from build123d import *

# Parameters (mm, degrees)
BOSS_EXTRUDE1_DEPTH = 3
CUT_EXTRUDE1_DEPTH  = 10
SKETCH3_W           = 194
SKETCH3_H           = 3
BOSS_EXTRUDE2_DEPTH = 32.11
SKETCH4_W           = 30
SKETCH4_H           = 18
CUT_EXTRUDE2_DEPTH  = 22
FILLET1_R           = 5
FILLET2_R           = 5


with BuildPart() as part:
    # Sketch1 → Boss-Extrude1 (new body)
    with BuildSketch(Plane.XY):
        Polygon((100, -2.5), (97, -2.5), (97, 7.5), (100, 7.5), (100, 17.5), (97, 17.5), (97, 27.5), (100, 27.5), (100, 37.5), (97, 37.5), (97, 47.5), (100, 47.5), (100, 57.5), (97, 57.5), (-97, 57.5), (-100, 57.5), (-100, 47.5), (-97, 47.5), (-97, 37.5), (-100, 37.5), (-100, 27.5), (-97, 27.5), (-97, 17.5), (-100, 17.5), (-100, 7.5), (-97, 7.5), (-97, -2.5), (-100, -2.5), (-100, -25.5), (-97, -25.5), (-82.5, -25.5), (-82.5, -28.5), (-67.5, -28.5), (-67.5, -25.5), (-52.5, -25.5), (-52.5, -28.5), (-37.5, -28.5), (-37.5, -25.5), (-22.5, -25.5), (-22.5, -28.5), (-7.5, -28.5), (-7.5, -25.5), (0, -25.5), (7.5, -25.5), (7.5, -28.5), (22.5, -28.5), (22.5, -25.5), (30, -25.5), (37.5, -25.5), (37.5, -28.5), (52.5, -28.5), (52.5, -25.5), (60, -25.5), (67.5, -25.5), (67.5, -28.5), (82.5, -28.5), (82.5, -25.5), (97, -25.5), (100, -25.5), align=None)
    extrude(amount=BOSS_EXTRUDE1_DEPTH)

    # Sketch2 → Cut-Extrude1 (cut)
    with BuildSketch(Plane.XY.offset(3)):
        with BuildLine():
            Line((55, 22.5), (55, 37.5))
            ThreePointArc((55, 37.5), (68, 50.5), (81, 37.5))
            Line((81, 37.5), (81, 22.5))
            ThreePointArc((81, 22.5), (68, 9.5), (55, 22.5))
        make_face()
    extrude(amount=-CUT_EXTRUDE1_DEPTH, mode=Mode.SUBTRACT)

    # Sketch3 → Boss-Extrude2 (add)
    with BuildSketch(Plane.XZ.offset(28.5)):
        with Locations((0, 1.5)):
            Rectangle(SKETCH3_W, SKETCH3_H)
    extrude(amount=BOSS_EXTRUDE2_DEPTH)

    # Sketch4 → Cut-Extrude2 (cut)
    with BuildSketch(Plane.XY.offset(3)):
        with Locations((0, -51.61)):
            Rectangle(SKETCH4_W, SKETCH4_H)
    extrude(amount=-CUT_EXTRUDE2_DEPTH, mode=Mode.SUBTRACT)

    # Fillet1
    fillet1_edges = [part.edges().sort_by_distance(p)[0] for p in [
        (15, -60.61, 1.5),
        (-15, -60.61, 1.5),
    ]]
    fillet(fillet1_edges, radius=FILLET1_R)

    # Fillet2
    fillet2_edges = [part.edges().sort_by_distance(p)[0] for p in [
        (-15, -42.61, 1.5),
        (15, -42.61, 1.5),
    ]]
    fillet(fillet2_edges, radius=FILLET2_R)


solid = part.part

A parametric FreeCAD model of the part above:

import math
import FreeCAD as App
import Part
import Sketcher
Q = App.Units.Quantity


def edges_at(feature, points):
    """Names of the edges that pass closest to the given points."""
    edges = feature.Shape.Edges
    near = lambda p: min(range(len(edges)), key=lambda i: edges[i].distToShape(Part.Vertex(*p))[0])
    return sorted({f"Edge{near(p) + 1}" for p in points})

doc = App.newDocument("Part")
params = doc.addObject("Spreadsheet::Sheet", "Params")
for row, (alias, value) in enumerate([
    ("sketch1_width", "3 mm"),
    ("sketch1_width2", "200 mm"),
    ("sketch1_width3", "15 mm"),
    ("sketch1_height", "10 mm"),
    ("sketch1_height2", "23 mm"),
    ("pad1_length", "3 mm"),
    ("sketch2_radius", "13 mm"),
    ("sketch2_height", "15 mm"),
    ("pocket1_length", "10 mm"),
    ("sketch3_width", "194 mm"),
    ("sketch3_height", "3 mm"),
    ("pad2_length", "32.11 mm"),
    ("sketch4_width", "30 mm"),
    ("sketch4_height", "18 mm"),
    ("pocket2_length", "22 mm"),
    ("fillet_radius", "5 mm"),
    ("fillet2_radius", "5 mm"),
], start=1):
    params.set(f"A{row}", alias)
    params.set(f"B{row}", "=" + value)
    params.setAlias(f"B{row}", alias)

body = doc.addObject("PartDesign::Body", "Body")

# Sketch on XY plane
sketch1 = body.newObject("Sketcher::SketchObject", "Sketch")
sketch1.AttachmentSupport = (doc.getObject("XY_Plane"), [""])
sketch1.MapMode = "FlatFace"
sketch1.addGeometry([
    Part.LineSegment(App.Vector(100, -2.5, 0), App.Vector(97, -2.5, 0)),  # 0
    Part.LineSegment(App.Vector(97, -2.5, 0), App.Vector(97, 7.5, 0)),  # 1
    Part.LineSegment(App.Vector(97, 7.5, 0), App.Vector(100, 7.5, 0)),  # 2
    Part.LineSegment(App.Vector(100, 7.5, 0), App.Vector(100, 17.5, 0)),  # 3
    Part.LineSegment(App.Vector(100, 17.5, 0), App.Vector(97, 17.5, 0)),  # 4
    Part.LineSegment(App.Vector(97, 17.5, 0), App.Vector(97, 27.5, 0)),  # 5
    Part.LineSegment(App.Vector(97, 27.5, 0), App.Vector(100, 27.5, 0)),  # 6
    Part.LineSegment(App.Vector(100, 27.5, 0), App.Vector(100, 37.5, 0)),  # 7
    Part.LineSegment(App.Vector(100, 37.5, 0), App.Vector(97, 37.5, 0)),  # 8
    Part.LineSegment(App.Vector(97, 37.5, 0), App.Vector(97, 47.5, 0)),  # 9
    Part.LineSegment(App.Vector(97, 47.5, 0), App.Vector(100, 47.5, 0)),  # 10
    Part.LineSegment(App.Vector(100, 47.5, 0), App.Vector(100, 57.5, 0)),  # 11
    Part.LineSegment(App.Vector(100, 57.5, 0), App.Vector(-100, 57.5, 0)),  # 12
    Part.LineSegment(App.Vector(-100, 57.5, 0), App.Vector(-100, 47.5, 0)),  # 13
    Part.LineSegment(App.Vector(-100, 47.5, 0), App.Vector(-97, 47.5, 0)),  # 14
    Part.LineSegment(App.Vector(-97, 47.5, 0), App.Vector(-97, 37.5, 0)),  # 15
    Part.LineSegment(App.Vector(-97, 37.5, 0), App.Vector(-100, 37.5, 0)),  # 16
    Part.LineSegment(App.Vector(-100, 37.5, 0), App.Vector(-100, 27.5, 0)),  # 17
    Part.LineSegment(App.Vector(-100, 27.5, 0), App.Vector(-97, 27.5, 0)),  # 18
    Part.LineSegment(App.Vector(-97, 27.5, 0), App.Vector(-97, 17.5, 0)),  # 19
    Part.LineSegment(App.Vector(-97, 17.5, 0), App.Vector(-100, 17.5, 0)),  # 20
    Part.LineSegment(App.Vector(-100, 17.5, 0), App.Vector(-100, 7.5, 0)),  # 21
    Part.LineSegment(App.Vector(-100, 7.5, 0), App.Vector(-97, 7.5, 0)),  # 22
    Part.LineSegment(App.Vector(-97, 7.5, 0), App.Vector(-97, -2.5, 0)),  # 23
    Part.LineSegment(App.Vector(-97, -2.5, 0), App.Vector(-100, -2.5, 0)),  # 24
    Part.LineSegment(App.Vector(-100, -2.5, 0), App.Vector(-100, -25.5, 0)),  # 25
    Part.LineSegment(App.Vector(-100, -25.5, 0), App.Vector(-82.5, -25.5, 0)),  # 26
    Part.LineSegment(App.Vector(-82.5, -25.5, 0), App.Vector(-82.5, -28.5, 0)),  # 27
    Part.LineSegment(App.Vector(-82.5, -28.5, 0), App.Vector(-67.5, -28.5, 0)),  # 28
    Part.LineSegment(App.Vector(-67.5, -28.5, 0), App.Vector(-67.5, -25.5, 0)),  # 29
    Part.LineSegment(App.Vector(-67.5, -25.5, 0), App.Vector(-52.5, -25.5, 0)),  # 30
    Part.LineSegment(App.Vector(-52.5, -25.5, 0), App.Vector(-52.5, -28.5, 0)),  # 31
    Part.LineSegment(App.Vector(-52.5, -28.5, 0), App.Vector(-37.5, -28.5, 0)),  # 32
    Part.LineSegment(App.Vector(-37.5, -28.5, 0), App.Vector(-37.5, -25.5, 0)),  # 33
    Part.LineSegment(App.Vector(-37.5, -25.5, 0), App.Vector(-22.5, -25.5, 0)),  # 34
    Part.LineSegment(App.Vector(-22.5, -25.5, 0), App.Vector(-22.5, -28.5, 0)),  # 35
    Part.LineSegment(App.Vector(-22.5, -28.5, 0), App.Vector(-7.5, -28.5, 0)),  # 36
    Part.LineSegment(App.Vector(-7.5, -28.5, 0), App.Vector(-7.5, -25.5, 0)),  # 37
    Part.LineSegment(App.Vector(-7.5, -25.5, 0), App.Vector(7.5, -25.5, 0)),  # 38
    Part.LineSegment(App.Vector(7.5, -25.5, 0), App.Vector(7.5, -28.5, 0)),  # 39
    Part.LineSegment(App.Vector(7.5, -28.5, 0), App.Vector(22.5, -28.5, 0)),  # 40
    Part.LineSegment(App.Vector(22.5, -28.5, 0), App.Vector(22.5, -25.5, 0)),  # 41
    Part.LineSegment(App.Vector(22.5, -25.5, 0), App.Vector(37.5, -25.5, 0)),  # 42
    Part.LineSegment(App.Vector(37.5, -25.5, 0), App.Vector(37.5, -28.5, 0)),  # 43
    Part.LineSegment(App.Vector(37.5, -28.5, 0), App.Vector(52.5, -28.5, 0)),  # 44
    Part.LineSegment(App.Vector(52.5, -28.5, 0), App.Vector(52.5, -25.5, 0)),  # 45
    Part.LineSegment(App.Vector(52.5, -25.5, 0), App.Vector(67.5, -25.5, 0)),  # 46
    Part.LineSegment(App.Vector(67.5, -25.5, 0), App.Vector(67.5, -28.5, 0)),  # 47
    Part.LineSegment(App.Vector(67.5, -28.5, 0), App.Vector(82.5, -28.5, 0)),  # 48
    Part.LineSegment(App.Vector(82.5, -28.5, 0), App.Vector(82.5, -25.5, 0)),  # 49
    Part.LineSegment(App.Vector(82.5, -25.5, 0), App.Vector(100, -25.5, 0)),  # 50
    Part.LineSegment(App.Vector(100, -25.5, 0), App.Vector(100, -2.5, 0)),  # 51
], False)
sketch1.addConstraint([
    Sketcher.Constraint("Coincident", 0, 2, 1, 1),
    Sketcher.Constraint("Coincident", 1, 2, 2, 1),
    Sketcher.Constraint("Coincident", 2, 2, 3, 1),
    Sketcher.Constraint("Coincident", 3, 2, 4, 1),
    Sketcher.Constraint("Coincident", 4, 2, 5, 1),
    Sketcher.Constraint("Coincident", 5, 2, 6, 1),
    Sketcher.Constraint("Coincident", 6, 2, 7, 1),
    Sketcher.Constraint("Coincident", 7, 2, 8, 1),
    Sketcher.Constraint("Coincident", 8, 2, 9, 1),
    Sketcher.Constraint("Coincident", 9, 2, 10, 1),
    Sketcher.Constraint("Coincident", 10, 2, 11, 1),
    Sketcher.Constraint("Coincident", 11, 2, 12, 1),
    Sketcher.Constraint("Coincident", 12, 2, 13, 1),
    Sketcher.Constraint("Coincident", 13, 2, 14, 1),
    Sketcher.Constraint("Coincident", 14, 2, 15, 1),
    Sketcher.Constraint("Coincident", 15, 2, 16, 1),
    Sketcher.Constraint("Coincident", 16, 2, 17, 1),
    Sketcher.Constraint("Coincident", 17, 2, 18, 1),
    Sketcher.Constraint("Coincident", 18, 2, 19, 1),
    Sketcher.Constraint("Coincident", 19, 2, 20, 1),
    Sketcher.Constraint("Coincident", 20, 2, 21, 1),
    Sketcher.Constraint("Coincident", 21, 2, 22, 1),
    Sketcher.Constraint("Coincident", 22, 2, 23, 1),
    Sketcher.Constraint("Coincident", 23, 2, 24, 1),
    Sketcher.Constraint("Coincident", 24, 2, 25, 1),
    Sketcher.Constraint("Coincident", 25, 2, 26, 1),
    Sketcher.Constraint("Coincident", 26, 2, 27, 1),
    Sketcher.Constraint("Coincident", 27, 2, 28, 1),
    Sketcher.Constraint("Coincident", 28, 2, 29, 1),
    Sketcher.Constraint("Coincident", 29, 2, 30, 1),
    Sketcher.Constraint("Coincident", 30, 2, 31, 1),
    Sketcher.Constraint("Coincident", 31, 2, 32, 1),
    Sketcher.Constraint("Coincident", 32, 2, 33, 1),
    Sketcher.Constraint("Coincident", 33, 2, 34, 1),
    Sketcher.Constraint("Coincident", 34, 2, 35, 1),
    Sketcher.Constraint("Coincident", 35, 2, 36, 1),
    Sketcher.Constraint("Coincident", 36, 2, 37, 1),
    Sketcher.Constraint("Coincident", 37, 2, 38, 1),
    Sketcher.Constraint("Coincident", 38, 2, 39, 1),
    Sketcher.Constraint("Coincident", 39, 2, 40, 1),
    Sketcher.Constraint("Coincident", 40, 2, 41, 1),
    Sketcher.Constraint("Coincident", 41, 2, 42, 1),
    Sketcher.Constraint("Coincident", 42, 2, 43, 1),
    Sketcher.Constraint("Coincident", 43, 2, 44, 1),
    Sketcher.Constraint("Coincident", 44, 2, 45, 1),
    Sketcher.Constraint("Coincident", 45, 2, 46, 1),
    Sketcher.Constraint("Coincident", 46, 2, 47, 1),
    Sketcher.Constraint("Coincident", 47, 2, 48, 1),
    Sketcher.Constraint("Coincident", 48, 2, 49, 1),
    Sketcher.Constraint("Coincident", 49, 2, 50, 1),
    Sketcher.Constraint("Coincident", 50, 2, 51, 1),
    Sketcher.Constraint("Coincident", 51, 2, 0, 1),
    Sketcher.Constraint("Horizontal", 0),
    Sketcher.Constraint("Vertical", 1),
    Sketcher.Constraint("Horizontal", 2),
    Sketcher.Constraint("Vertical", 3),
    Sketcher.Constraint("Horizontal", 4),
    Sketcher.Constraint("Vertical", 5),
    Sketcher.Constraint("Horizontal", 6),
    Sketcher.Constraint("Vertical", 7),
    Sketcher.Constraint("Horizontal", 8),
    Sketcher.Constraint("Vertical", 9),
    Sketcher.Constraint("Horizontal", 10),
    Sketcher.Constraint("Vertical", 11),
    Sketcher.Constraint("Horizontal", 12),
    Sketcher.Constraint("Vertical", 13),
    Sketcher.Constraint("Horizontal", 14),
    Sketcher.Constraint("Vertical", 15),
    Sketcher.Constraint("Horizontal", 16),
    Sketcher.Constraint("Vertical", 17),
    Sketcher.Constraint("Horizontal", 18),
    Sketcher.Constraint("Vertical", 19),
    Sketcher.Constraint("Horizontal", 20),
    Sketcher.Constraint("Vertical", 21),
    Sketcher.Constraint("Horizontal", 22),
    Sketcher.Constraint("Vertical", 23),
    Sketcher.Constraint("Horizontal", 24),
    Sketcher.Constraint("Vertical", 25),
    Sketcher.Constraint("Horizontal", 26),
    Sketcher.Constraint("Vertical", 27),
    Sketcher.Constraint("Horizontal", 28),
    Sketcher.Constraint("Vertical", 29),
    Sketcher.Constraint("Horizontal", 30),
    Sketcher.Constraint("Vertical", 31),
    Sketcher.Constraint("Horizontal", 32),
    Sketcher.Constraint("Vertical", 33),
    Sketcher.Constraint("Horizontal", 34),
    Sketcher.Constraint("Vertical", 35),
    Sketcher.Constraint("Horizontal", 36),
    Sketcher.Constraint("Vertical", 37),
    Sketcher.Constraint("Horizontal", 38),
    Sketcher.Constraint("Vertical", 39),
    Sketcher.Constraint("Horizontal", 40),
    Sketcher.Constraint("Vertical", 41),
    Sketcher.Constraint("Horizontal", 42),
    Sketcher.Constraint("Vertical", 43),
    Sketcher.Constraint("Horizontal", 44),
    Sketcher.Constraint("Vertical", 45),
    Sketcher.Constraint("Horizontal", 46),
    Sketcher.Constraint("Vertical", 47),
    Sketcher.Constraint("Horizontal", 48),
    Sketcher.Constraint("Vertical", 49),
    Sketcher.Constraint("Horizontal", 50),
    Sketcher.Constraint("Vertical", 51),
    Sketcher.Constraint("Symmetric", 10, 2, 13, 2, -2),
    Sketcher.Constraint("Symmetric", 8, 2, 15, 2, -2),
    Sketcher.Constraint("Symmetric", 6, 2, 17, 2, -2),
    Sketcher.Constraint("Symmetric", 4, 2, 19, 2, -2),
    Sketcher.Constraint("Symmetric", 2, 2, 21, 2, -2),
    Sketcher.Constraint("Symmetric", 0, 2, 23, 2, -2),
    Sketcher.Constraint("Symmetric", 36, 2, 39, 2, -2),
    Sketcher.Constraint("Symmetric", 34, 2, 41, 2, -2),
    Sketcher.Constraint("Symmetric", 32, 2, 43, 2, -2),
    Sketcher.Constraint("Symmetric", 30, 2, 45, 2, -2),
    Sketcher.Constraint("Symmetric", 28, 2, 47, 2, -2),
    Sketcher.Constraint("Symmetric", 26, 2, 49, 2, -2),
    Sketcher.Constraint("Horizontal", 26, 2, 29, 2),
    Sketcher.Constraint("Horizontal", 28, 2, 31, 2),
    Sketcher.Constraint("Horizontal", 30, 2, 33, 2),
    Sketcher.Constraint("Horizontal", 32, 2, 35, 2),
    Sketcher.Constraint("Horizontal", 34, 2, 37, 2),
    Sketcher.Constraint("Vertical", 1, 2, 4, 2),
    Sketcher.Constraint("Vertical", 3, 2, 6, 2),
    Sketcher.Constraint("Vertical", 5, 2, 8, 2),
    Sketcher.Constraint("Vertical", 7, 2, 10, 2),
    Sketcher.Constraint("Vertical", 21, 2, 24, 2),
    Sketcher.Constraint("Vertical", 11, 2, 50, 2),
    Sketcher.Constraint("Equal", 28, 30),
    Sketcher.Constraint("Equal", 30, 32),
    Sketcher.Constraint("Equal", 32, 34),
    Sketcher.Constraint("Equal", 34, 36),
    Sketcher.Constraint("Equal", 36, 38),
    Sketcher.Constraint("Equal", 1, 3),
    Sketcher.Constraint("Equal", 3, 5),
    Sketcher.Constraint("Equal", 5, 7),
    Sketcher.Constraint("Equal", 7, 9),
    Sketcher.Constraint("Equal", 9, 11),
    Sketcher.Constraint("Equal", 24, 27),
    Sketcher.Constraint("DistanceX", 0, 2, 0, 1, Q("3 mm")),
    Sketcher.Constraint("DistanceX", 12, 2, 12, 1, Q("200 mm")),
    Sketcher.Constraint("DistanceX", 28, 1, 28, 2, Q("15 mm")),
    Sketcher.Constraint("DistanceY", 1, 1, 1, 2, Q("10 mm")),
    Sketcher.Constraint("DistanceY", 25, 2, 25, 1, Q("23 mm")),
    Sketcher.Constraint("DistanceY", 0, 2, -1, 1, Q("2.5 mm")),
])
sketch1.setExpression("Constraints[138]", "Params.sketch1_width")
sketch1.setExpression("Constraints[139]", "Params.sketch1_width2")
sketch1.setExpression("Constraints[140]", "Params.sketch1_width3")
sketch1.setExpression("Constraints[141]", "Params.sketch1_height")
sketch1.setExpression("Constraints[142]", "Params.sketch1_height2")
pad1 = body.newObject("PartDesign::Pad", "Pad")
pad1.Profile = sketch1
pad1.setExpression("Length", "Params.pad1_length")

# Sketch on XY plane
sketch2 = body.newObject("Sketcher::SketchObject", "Sketch001")
sketch2.AttachmentSupport = (doc.getObject("XY_Plane"), [""])
sketch2.MapMode = "FlatFace"
sketch2.AttachmentOffset = App.Placement(App.Vector(0, 0, 3), App.Rotation())
sketch2.addGeometry([
    Part.LineSegment(App.Vector(55, 38, 0), App.Vector(55, 22, 0)),
    Part.ArcOfCircle(Part.Circle(App.Vector(68, 22, 0), App.Vector(0, 0, 1), 13), math.radians(180), math.radians(360)),
    Part.LineSegment(App.Vector(81, 22, 0), App.Vector(81, 38, 0)),
    Part.ArcOfCircle(Part.Circle(App.Vector(68, 38, 0), App.Vector(0, 0, 1), 13), math.radians(0), math.radians(180)),
], False)
sketch2.addConstraint([
    Sketcher.Constraint("Tangent", 0, 2, 1, 1),
    Sketcher.Constraint("Tangent", 1, 2, 2, 1),
    Sketcher.Constraint("Tangent", 2, 2, 3, 1),
    Sketcher.Constraint("Tangent", 3, 2, 0, 1),
    Sketcher.Constraint("Vertical", 0),
    Sketcher.Constraint("Vertical", 2),
    Sketcher.Constraint("Radius", 1, Q("13 mm")),
    Sketcher.Constraint("DistanceY", 0, 2, 0, 1, Q("15 mm")),
    Sketcher.Constraint("DistanceX", -1, 1, 1, 3, Q("68 mm")),
    Sketcher.Constraint("DistanceY", -1, 1, 1, 3, Q("22.5 mm")),
])
sketch2.setExpression("Constraints[6]", "Params.sketch2_radius")
sketch2.setExpression("Constraints[7]", "Params.sketch2_height")
pocket1 = body.newObject("PartDesign::Pocket", "Pocket")
pocket1.Profile = sketch2
pocket1.setExpression("Length", "Params.pocket1_length")

# Sketch on XZ plane
sketch3 = body.newObject("Sketcher::SketchObject", "Sketch002")
sketch3.AttachmentSupport = (doc.getObject("XZ_Plane"), [""])
sketch3.MapMode = "FlatFace"
sketch3.AttachmentOffset = App.Placement(App.Vector(0, 0, 28.5), App.Rotation())
sketch3.addGeometry([
    Part.LineSegment(App.Vector(-97, 3, 0), App.Vector(-97, 0, 0)),
    Part.LineSegment(App.Vector(-97, 0, 0), App.Vector(97, 0, 0)),
    Part.LineSegment(App.Vector(97, 0, 0), App.Vector(97, 3, 0)),
    Part.LineSegment(App.Vector(97, 3, 0), App.Vector(-97, 3, 0)),
], False)
sketch3.addConstraint([
    Sketcher.Constraint("Coincident", 0, 2, 1, 1),
    Sketcher.Constraint("Coincident", 1, 2, 2, 1),
    Sketcher.Constraint("Coincident", 2, 2, 3, 1),
    Sketcher.Constraint("Coincident", 3, 2, 0, 1),
    Sketcher.Constraint("Vertical", 0),
    Sketcher.Constraint("Horizontal", 1),
    Sketcher.Constraint("Vertical", 2),
    Sketcher.Constraint("Horizontal", 3),
    Sketcher.Constraint("Symmetric", 0, 2, 1, 2, -1, 1),
    Sketcher.Constraint("DistanceX", 1, 1, 1, 2, Q("194 mm")),
    Sketcher.Constraint("DistanceY", 0, 2, 0, 1, Q("3 mm")),
])
sketch3.setExpression("Constraints[9]", "Params.sketch3_width")
sketch3.setExpression("Constraints[10]", "Params.sketch3_height")
pad2 = body.newObject("PartDesign::Pad", "Pad001")
pad2.Profile = sketch3
pad2.setExpression("Length", "Params.pad2_length")

# Sketch on XY plane
sketch4 = body.newObject("Sketcher::SketchObject", "Sketch003")
sketch4.AttachmentSupport = (doc.getObject("XY_Plane"), [""])
sketch4.MapMode = "FlatFace"
sketch4.AttachmentOffset = App.Placement(App.Vector(0, 0, 3), App.Rotation())
sketch4.addGeometry([
    Part.LineSegment(App.Vector(-15, -43, 0), App.Vector(-15, -61, 0)),
    Part.LineSegment(App.Vector(-15, -61, 0), App.Vector(15, -61, 0)),
    Part.LineSegment(App.Vector(15, -61, 0), App.Vector(15, -43, 0)),
    Part.LineSegment(App.Vector(15, -43, 0), App.Vector(-15, -43, 0)),
], False)
sketch4.addConstraint([
    Sketcher.Constraint("Coincident", 0, 2, 1, 1),
    Sketcher.Constraint("Coincident", 1, 2, 2, 1),
    Sketcher.Constraint("Coincident", 2, 2, 3, 1),
    Sketcher.Constraint("Coincident", 3, 2, 0, 1),
    Sketcher.Constraint("Vertical", 0),
    Sketcher.Constraint("Horizontal", 1),
    Sketcher.Constraint("Vertical", 2),
    Sketcher.Constraint("Horizontal", 3),
    Sketcher.Constraint("DistanceX", 1, 1, 1, 2, Q("30 mm")),
    Sketcher.Constraint("DistanceY", 0, 2, 0, 1, Q("18 mm")),
    Sketcher.Constraint("DistanceX", 0, 2, -1, 1, Q("15 mm")),
    Sketcher.Constraint("DistanceY", 0, 2, -1, 1, Q("60.61 mm")),
])
sketch4.setExpression("Constraints[8]", "Params.sketch4_width")
sketch4.setExpression("Constraints[9]", "Params.sketch4_height")
pocket2 = body.newObject("PartDesign::Pocket", "Pocket001")
pocket2.Profile = sketch4
pocket2.setExpression("Length", "Params.pocket2_length")
doc.recompute()

fillet = body.newObject("PartDesign::Fillet", "Fillet")
fillet.Base = (pocket2, edges_at(pocket2, [(15, -60.61, 1.5), (-15, -60.61, 1.5)]))
fillet.setExpression("Radius", "Params.fillet_radius")
doc.recompute()

fillet2 = body.newObject("PartDesign::Fillet", "Fillet001")
fillet2.Base = (fillet, edges_at(fillet, [(-15, -42.61, 1.5), (15, -42.61, 1.5)]))
fillet2.setExpression("Radius", "Params.fillet2_radius")

doc.recompute()
